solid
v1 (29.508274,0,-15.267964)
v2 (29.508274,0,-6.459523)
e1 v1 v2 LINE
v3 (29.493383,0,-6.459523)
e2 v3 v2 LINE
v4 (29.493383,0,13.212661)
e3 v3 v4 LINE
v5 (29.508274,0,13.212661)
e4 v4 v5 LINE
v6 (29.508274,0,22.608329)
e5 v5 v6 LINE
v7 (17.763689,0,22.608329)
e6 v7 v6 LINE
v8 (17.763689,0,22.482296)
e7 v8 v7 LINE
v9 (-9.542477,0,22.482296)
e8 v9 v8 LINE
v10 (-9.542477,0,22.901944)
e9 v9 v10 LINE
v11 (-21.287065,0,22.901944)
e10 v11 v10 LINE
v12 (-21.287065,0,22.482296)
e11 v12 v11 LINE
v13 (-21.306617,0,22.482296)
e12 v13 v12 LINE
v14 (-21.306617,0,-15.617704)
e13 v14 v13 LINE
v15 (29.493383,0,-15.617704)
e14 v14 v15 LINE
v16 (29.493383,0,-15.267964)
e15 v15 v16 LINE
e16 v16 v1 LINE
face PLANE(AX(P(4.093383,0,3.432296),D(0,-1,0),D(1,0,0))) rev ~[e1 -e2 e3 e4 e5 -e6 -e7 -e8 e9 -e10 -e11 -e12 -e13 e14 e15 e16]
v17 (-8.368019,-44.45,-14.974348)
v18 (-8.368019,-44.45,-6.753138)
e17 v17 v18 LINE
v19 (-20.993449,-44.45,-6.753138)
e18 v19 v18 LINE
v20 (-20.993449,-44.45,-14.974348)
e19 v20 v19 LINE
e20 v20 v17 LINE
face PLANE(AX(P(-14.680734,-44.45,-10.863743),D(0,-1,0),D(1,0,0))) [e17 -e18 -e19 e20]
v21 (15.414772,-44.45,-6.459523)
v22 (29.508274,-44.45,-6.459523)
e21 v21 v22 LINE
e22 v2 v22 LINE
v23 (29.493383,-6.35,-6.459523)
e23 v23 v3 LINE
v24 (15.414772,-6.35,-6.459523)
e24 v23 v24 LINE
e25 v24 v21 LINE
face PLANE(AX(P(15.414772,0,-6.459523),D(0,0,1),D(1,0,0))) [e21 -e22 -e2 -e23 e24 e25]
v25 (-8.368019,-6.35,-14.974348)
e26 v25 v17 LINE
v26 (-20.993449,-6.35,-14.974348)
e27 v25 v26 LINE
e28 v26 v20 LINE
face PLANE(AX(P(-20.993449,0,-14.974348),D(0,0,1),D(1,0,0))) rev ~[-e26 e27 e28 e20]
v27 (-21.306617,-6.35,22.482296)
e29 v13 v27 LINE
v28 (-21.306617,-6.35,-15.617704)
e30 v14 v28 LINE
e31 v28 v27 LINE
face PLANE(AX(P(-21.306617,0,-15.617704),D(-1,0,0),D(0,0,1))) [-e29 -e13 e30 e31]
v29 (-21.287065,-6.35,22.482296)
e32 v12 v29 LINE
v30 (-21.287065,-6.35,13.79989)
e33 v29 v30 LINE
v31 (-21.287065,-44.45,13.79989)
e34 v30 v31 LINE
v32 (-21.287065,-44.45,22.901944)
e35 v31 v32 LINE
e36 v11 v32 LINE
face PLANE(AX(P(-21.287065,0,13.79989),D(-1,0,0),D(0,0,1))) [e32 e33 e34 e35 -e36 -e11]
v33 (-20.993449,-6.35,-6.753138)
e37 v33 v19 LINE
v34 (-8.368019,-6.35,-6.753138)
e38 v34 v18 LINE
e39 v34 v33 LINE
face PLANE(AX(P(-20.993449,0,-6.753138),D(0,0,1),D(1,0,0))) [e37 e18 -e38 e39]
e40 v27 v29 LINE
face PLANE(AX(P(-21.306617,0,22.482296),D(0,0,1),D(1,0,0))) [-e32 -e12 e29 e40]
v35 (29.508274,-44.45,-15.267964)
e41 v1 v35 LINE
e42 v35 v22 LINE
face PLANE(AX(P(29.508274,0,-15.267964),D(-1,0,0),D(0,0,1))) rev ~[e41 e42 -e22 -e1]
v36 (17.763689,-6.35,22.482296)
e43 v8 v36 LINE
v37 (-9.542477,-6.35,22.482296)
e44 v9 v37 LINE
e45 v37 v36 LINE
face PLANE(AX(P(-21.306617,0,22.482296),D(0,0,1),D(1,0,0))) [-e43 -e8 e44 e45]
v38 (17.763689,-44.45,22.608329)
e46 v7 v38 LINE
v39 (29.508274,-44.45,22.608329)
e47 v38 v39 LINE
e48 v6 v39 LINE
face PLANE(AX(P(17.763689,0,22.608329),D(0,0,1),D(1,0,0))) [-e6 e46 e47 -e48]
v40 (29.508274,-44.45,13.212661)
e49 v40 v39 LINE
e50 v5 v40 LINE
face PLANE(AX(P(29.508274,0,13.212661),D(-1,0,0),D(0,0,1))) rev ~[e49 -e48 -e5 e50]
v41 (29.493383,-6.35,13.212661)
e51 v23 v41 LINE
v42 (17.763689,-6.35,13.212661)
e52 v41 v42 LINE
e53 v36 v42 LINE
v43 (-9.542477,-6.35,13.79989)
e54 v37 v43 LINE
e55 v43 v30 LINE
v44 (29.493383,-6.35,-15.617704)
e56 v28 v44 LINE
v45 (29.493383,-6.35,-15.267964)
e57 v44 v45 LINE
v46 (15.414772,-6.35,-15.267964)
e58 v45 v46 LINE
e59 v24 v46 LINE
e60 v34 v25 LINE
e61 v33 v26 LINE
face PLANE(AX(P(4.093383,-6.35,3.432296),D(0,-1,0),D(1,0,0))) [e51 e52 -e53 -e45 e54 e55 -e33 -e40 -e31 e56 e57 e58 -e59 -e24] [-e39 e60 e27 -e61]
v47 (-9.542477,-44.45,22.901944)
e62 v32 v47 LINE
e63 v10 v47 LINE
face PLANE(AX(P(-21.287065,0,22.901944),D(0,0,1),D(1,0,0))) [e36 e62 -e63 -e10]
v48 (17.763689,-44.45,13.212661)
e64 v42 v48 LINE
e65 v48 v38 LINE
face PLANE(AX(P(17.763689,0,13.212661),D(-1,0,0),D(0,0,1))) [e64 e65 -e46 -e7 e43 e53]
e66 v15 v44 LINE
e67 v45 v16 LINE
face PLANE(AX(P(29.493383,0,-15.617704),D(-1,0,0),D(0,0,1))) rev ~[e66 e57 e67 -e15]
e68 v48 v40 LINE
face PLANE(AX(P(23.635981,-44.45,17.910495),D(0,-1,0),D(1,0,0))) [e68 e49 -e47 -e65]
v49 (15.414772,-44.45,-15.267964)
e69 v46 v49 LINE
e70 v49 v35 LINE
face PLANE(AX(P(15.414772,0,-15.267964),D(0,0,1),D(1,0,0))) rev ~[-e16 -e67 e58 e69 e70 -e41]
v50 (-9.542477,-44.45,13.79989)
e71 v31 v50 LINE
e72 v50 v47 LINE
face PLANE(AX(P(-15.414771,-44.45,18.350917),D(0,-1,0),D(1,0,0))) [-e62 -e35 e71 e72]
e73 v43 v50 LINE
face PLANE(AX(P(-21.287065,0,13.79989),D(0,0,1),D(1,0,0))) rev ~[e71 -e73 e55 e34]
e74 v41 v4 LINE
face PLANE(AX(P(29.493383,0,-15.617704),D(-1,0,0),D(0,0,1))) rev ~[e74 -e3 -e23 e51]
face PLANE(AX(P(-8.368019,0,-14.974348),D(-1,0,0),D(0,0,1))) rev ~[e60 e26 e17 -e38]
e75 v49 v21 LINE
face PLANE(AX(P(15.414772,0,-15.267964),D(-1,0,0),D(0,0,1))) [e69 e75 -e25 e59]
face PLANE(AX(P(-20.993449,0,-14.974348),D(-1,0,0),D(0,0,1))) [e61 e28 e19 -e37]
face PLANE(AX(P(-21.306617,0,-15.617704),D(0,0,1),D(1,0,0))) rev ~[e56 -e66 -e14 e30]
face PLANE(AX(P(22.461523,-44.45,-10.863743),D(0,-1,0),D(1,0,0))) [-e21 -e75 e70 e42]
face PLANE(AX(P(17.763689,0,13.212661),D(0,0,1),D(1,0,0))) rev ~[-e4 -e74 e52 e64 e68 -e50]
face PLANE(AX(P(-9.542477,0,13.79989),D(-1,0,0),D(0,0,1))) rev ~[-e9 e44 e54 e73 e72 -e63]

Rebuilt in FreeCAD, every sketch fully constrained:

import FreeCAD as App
import Part
import Sketcher
Q = App.Units.Quantity


def add_polygon(sketch, points):
    """Adds a closed chain of lines whose ends are joined by coincident constraints."""
    first, n = sketch.GeometryCount, len(points)
    for a, b in zip(points, points[1:] + points[:1]):
        sketch.addGeometry(Part.LineSegment(App.Vector(*a, 0), App.Vector(*b, 0)), False)
    for i in range(n):
        sketch.addConstraint(Sketcher.Constraint("Coincident", first + i, 2, first + (i + 1) % n, 1))

doc = App.newDocument("Part")
body = doc.addObject("PartDesign::Body", "Body")

# Sketch on XZ plane
sketch1 = body.newObject("Sketcher::SketchObject", "Sketch")
sketch1.AttachmentSupport = (doc.getObject("XZ_Plane"), [""])
sketch1.MapMode = "FlatFace"
add_polygon(sketch1, [(-21, 22), (-21, -16), (29, -16), (29, 22)])  # lines 0-3
sketch1.addConstraint(Sketcher.Constraint("Vertical", 0))
sketch1.addConstraint(Sketcher.Constraint("Horizontal", 1))
sketch1.addConstraint(Sketcher.Constraint("Vertical", 2))
sketch1.addConstraint(Sketcher.Constraint("Horizontal", 3))
sketch1.addConstraint(Sketcher.Constraint("DistanceX", 1, 1, 1, 2, Q("2 in")))
sketch1.addConstraint(Sketcher.Constraint("DistanceY", 0, 2, 0, 1, Q("1.5 in")))
sketch1.addConstraint(Sketcher.Constraint("DistanceX", 0, 2, -1, 1, 21.306617))
sketch1.addConstraint(Sketcher.Constraint("DistanceY", 0, 2, -1, 1, 15.617704))
pad1 = body.newObject("PartDesign::Pad", "Pad")
pad1.Profile = sketch1
pad1.Length = Q("0.25 in")

# Sketch on XZ plane
sketch2 = body.newObject("Sketcher::SketchObject", "Sketch001")
sketch2.AttachmentSupport = (doc.getObject("XZ_Plane"), [""])
sketch2.MapMode = "FlatFace"
add_polygon(sketch2, [(-21, 23), (-21, 14), (-10, 14), (-10, 23)])  # lines 0-3
add_polygon(sketch2, [(-21, -7), (-21, -15), (-8, -15), (-8, -7)])  # lines 4-7
add_polygon(sketch2, [(18, 23), (18, 13), (30, 13), (30, 23)])  # lines 8-11
add_polygon(sketch2, [(15, -6), (15, -15), (30, -15), (30, -6)])  # lines 12-15
sketch2.addConstraint(Sketcher.Constraint("Vertical", 0))
sketch2.addConstraint(Sketcher.Constraint("Horizontal", 1))
sketch2.addConstraint(Sketcher.Constraint("Vertical", 2))
sketch2.addConstraint(Sketcher.Constraint("Horizontal", 3))
sketch2.addConstraint(Sketcher.Constraint("Vertical", 4))
sketch2.addConstraint(Sketcher.Constraint("Horizontal", 5))
sketch2.addConstraint(Sketcher.Constraint("Vertical", 6))
sketch2.addConstraint(Sketcher.Constraint("Horizontal", 7))
sketch2.addConstraint(Sketcher.Constraint("Vertical", 8))
sketch2.addConstraint(Sketcher.Constraint("Horizontal", 9))
sketch2.addConstraint(Sketcher.Constraint("Vertical", 10))
sketch2.addConstraint(Sketcher.Constraint("Horizontal", 11))
sketch2.addConstraint(Sketcher.Constraint("Vertical", 12))
sketch2.addConstraint(Sketcher.Constraint("Horizontal", 13))
sketch2.addConstraint(Sketcher.Constraint("Vertical", 14))
sketch2.addConstraint(Sketcher.Constraint("Horizontal", 15))
sketch2.addConstraint(Sketcher.Constraint("Vertical", 10, 2, 13, 2))
sketch2.addConstraint(Sketcher.Constraint("DistanceX", 13, 1, 13, 2, 14.093501))
sketch2.addConstraint(Sketcher.Constraint("DistanceX", 5, 1, 5, 2, 12.62543))
sketch2.addConstraint(Sketcher.Constraint("DistanceY", 4, 2, 4, 1, 8.22121))
sketch2.addConstraint(Sketcher.Constraint("DistanceY", 8, 2, 8, 1, 9.395669))
sketch2.addConstraint(Sketcher.Constraint("DistanceY", 12, 2, 12, 1, 8.808441))
sketch2.addConstraint(Sketcher.Constraint("DistanceY", 6, 2, 8, 2, 19.965798))
sketch2.addConstraint(Sketcher.Constraint("DistanceX", 1, 1, 1, 2, 11.744588))
sketch2.addConstraint(Sketcher.Constraint("DistanceX", 9, 1, 9, 2, 11.744585))
sketch2.addConstraint(Sketcher.Constraint("DistanceY", 0, 2, 0, 1, 9.102055))
sketch2.addConstraint(Sketcher.Constraint("DistanceY", -1, 1, 0, 2, 13.79989))
sketch2.addConstraint(Sketcher.Constraint("DistanceX", 4, 2, -1, 1, 20.993449))
sketch2.addConstraint(Sketcher.Constraint("DistanceY", 4, 2, -1, 1, 14.974348))
sketch2.addConstraint(Sketcher.Constraint("DistanceX", -1, 1, 8, 2, 17.763689))
sketch2.addConstraint(Sketcher.Constraint("DistanceX", 4, 2, 1, 2, 11.450972))
sketch2.addConstraint(Sketcher.Constraint("DistanceY", 12, 2, -1, 1, 15.267964))
pad2 = body.newObject("PartDesign::Pad", "Pad001")
pad2.Profile = sketch2
pad2.Length = Q("1.75 in")

doc.recompute()
